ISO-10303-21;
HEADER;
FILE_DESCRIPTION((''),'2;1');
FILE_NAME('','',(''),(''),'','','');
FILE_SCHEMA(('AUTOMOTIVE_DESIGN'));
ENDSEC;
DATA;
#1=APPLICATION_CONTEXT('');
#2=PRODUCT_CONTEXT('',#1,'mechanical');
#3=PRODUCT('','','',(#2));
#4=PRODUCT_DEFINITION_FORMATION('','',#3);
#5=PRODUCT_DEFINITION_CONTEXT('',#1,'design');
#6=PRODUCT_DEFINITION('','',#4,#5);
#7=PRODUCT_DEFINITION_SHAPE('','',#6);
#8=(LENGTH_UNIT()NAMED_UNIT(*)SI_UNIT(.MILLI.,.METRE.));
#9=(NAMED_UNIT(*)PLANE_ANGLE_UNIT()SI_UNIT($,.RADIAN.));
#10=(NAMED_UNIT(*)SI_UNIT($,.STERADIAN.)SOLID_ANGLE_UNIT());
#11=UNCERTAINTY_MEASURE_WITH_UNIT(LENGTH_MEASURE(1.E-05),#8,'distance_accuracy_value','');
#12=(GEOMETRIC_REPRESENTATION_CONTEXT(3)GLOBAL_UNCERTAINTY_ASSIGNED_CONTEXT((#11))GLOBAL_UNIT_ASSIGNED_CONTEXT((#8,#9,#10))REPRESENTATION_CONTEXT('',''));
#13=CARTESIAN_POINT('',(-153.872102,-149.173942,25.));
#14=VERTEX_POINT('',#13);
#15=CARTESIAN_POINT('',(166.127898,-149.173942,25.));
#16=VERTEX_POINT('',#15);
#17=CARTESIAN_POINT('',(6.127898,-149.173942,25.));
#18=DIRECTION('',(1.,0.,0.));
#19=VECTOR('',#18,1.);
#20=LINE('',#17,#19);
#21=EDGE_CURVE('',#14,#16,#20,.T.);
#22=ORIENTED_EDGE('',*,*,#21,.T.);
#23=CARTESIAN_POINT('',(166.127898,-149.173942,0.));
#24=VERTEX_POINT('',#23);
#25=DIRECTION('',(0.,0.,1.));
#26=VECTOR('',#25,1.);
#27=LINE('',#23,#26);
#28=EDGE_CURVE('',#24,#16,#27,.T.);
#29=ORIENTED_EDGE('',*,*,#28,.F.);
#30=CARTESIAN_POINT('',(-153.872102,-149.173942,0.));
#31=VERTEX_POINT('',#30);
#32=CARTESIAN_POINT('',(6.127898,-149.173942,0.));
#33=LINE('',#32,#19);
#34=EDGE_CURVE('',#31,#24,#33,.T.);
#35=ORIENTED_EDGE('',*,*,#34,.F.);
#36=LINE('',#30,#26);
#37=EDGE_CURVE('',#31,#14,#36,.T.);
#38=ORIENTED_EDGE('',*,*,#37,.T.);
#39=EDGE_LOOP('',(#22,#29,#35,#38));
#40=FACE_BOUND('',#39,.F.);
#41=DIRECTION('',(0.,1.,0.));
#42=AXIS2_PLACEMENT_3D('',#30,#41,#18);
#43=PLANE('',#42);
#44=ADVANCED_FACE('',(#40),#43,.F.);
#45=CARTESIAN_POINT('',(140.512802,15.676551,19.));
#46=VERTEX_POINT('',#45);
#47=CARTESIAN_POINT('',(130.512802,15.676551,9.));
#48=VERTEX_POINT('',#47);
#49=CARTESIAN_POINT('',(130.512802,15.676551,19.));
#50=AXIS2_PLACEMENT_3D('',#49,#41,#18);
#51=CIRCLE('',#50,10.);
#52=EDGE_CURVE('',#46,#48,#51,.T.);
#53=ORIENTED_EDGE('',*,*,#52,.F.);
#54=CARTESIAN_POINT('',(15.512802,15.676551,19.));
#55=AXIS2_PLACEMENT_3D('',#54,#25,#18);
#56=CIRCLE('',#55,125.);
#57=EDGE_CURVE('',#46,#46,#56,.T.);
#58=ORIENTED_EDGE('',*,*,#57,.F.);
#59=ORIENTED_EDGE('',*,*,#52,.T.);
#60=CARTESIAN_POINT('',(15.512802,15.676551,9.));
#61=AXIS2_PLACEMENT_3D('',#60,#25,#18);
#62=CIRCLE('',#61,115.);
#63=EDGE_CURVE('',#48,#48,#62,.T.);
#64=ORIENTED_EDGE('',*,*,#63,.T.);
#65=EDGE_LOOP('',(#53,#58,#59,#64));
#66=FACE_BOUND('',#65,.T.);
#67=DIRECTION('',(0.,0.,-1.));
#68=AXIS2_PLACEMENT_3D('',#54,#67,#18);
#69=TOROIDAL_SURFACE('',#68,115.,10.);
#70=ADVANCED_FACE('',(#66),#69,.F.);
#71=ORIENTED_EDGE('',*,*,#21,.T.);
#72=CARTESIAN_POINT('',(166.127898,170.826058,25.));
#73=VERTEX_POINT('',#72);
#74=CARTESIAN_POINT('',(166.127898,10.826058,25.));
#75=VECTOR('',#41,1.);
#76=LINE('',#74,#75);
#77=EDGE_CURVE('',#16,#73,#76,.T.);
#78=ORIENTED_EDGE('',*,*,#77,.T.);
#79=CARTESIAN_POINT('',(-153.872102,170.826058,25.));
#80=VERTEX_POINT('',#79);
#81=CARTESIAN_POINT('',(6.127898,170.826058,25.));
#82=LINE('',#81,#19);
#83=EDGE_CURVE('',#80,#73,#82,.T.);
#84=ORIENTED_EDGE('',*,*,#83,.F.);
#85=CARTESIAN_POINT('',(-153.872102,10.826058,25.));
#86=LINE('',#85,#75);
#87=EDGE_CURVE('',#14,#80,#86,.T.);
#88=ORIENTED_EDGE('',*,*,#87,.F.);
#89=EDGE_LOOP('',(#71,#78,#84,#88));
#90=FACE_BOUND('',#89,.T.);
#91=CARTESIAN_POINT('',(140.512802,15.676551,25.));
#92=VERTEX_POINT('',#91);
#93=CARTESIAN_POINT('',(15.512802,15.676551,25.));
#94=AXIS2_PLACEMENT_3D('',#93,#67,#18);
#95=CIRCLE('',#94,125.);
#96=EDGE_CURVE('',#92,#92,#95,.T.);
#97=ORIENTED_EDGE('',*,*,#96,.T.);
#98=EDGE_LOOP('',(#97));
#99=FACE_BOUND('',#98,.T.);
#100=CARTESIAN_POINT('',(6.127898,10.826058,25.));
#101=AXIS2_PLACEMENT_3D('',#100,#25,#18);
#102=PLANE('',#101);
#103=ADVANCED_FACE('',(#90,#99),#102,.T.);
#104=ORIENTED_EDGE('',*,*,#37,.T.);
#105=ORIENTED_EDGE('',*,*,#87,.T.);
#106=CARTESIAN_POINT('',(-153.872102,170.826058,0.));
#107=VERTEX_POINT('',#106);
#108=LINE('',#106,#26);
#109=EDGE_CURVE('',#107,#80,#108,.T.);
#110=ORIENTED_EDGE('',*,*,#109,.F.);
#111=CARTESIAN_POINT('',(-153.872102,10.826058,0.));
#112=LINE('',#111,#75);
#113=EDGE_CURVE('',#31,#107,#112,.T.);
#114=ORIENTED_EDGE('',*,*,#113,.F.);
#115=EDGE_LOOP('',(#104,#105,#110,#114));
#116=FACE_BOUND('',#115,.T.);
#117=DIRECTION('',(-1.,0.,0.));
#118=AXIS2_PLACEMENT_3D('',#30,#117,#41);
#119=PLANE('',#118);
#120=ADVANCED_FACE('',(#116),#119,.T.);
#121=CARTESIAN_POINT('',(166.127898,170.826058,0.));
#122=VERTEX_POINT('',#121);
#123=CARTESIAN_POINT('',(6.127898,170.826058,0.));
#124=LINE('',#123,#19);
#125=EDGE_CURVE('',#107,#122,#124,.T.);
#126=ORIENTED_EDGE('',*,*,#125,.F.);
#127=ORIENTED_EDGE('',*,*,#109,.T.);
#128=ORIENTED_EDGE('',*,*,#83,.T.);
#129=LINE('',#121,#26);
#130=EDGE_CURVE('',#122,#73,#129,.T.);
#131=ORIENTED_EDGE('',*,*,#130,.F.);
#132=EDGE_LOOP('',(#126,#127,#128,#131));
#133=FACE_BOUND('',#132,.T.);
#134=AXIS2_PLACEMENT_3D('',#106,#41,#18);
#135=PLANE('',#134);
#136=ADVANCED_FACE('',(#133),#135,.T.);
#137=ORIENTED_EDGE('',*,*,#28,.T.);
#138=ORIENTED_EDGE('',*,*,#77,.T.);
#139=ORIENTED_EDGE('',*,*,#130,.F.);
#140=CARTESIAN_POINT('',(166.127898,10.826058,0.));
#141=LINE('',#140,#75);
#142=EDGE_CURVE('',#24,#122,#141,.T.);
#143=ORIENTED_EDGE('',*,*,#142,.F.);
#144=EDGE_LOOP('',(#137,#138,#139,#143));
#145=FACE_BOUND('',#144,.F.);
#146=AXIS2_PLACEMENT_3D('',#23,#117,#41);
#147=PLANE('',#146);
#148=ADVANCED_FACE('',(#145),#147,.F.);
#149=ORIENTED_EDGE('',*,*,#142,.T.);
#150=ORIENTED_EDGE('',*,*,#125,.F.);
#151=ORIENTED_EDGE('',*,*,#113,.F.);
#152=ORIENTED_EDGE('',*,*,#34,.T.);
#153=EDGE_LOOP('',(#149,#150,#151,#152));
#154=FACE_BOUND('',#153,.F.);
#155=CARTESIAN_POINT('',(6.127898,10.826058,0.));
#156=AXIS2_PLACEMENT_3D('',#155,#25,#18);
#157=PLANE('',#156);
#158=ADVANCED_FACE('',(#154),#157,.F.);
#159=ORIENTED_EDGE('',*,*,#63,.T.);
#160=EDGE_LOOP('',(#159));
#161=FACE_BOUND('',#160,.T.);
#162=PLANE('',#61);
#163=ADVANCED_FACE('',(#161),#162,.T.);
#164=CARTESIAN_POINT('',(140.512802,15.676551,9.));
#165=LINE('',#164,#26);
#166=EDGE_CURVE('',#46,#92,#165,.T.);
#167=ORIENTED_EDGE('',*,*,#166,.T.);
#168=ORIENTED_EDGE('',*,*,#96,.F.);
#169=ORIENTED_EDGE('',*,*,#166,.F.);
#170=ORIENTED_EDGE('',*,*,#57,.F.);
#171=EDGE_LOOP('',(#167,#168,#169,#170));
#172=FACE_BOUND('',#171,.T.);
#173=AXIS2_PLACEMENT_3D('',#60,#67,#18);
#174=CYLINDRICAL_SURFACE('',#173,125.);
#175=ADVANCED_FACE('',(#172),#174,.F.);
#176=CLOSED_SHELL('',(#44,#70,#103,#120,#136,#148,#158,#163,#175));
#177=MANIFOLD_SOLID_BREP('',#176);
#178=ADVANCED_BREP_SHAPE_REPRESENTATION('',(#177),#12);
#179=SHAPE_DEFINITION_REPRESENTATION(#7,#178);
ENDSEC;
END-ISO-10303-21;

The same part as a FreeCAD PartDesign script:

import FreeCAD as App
import Part
import Sketcher
from FreeCAD import Vector
Q = App.Units.Quantity


def edges_at(feature, points):
    """Names of the edges that pass closest to the given points."""
    edges = feature.Shape.Edges
    near = lambda p: min(range(len(edges)), key=lambda i: edges[i].distToShape(Part.Vertex(*p))[0])
    return sorted({f"Edge{near(p) + 1}" for p in points})

doc = App.newDocument("Part")
body = doc.addObject("PartDesign::Body", "Body")

# Sketch on XY plane
sketch1 = doc.addObject("Sketcher::SketchObject", "Sketch")
body.addObject(sketch1)
sketch1.AttachmentSupport = (doc.XY_Plane, [""])
sketch1.MapMode = "FlatFace"
sketch1.addGeometry([
    Part.LineSegment(Vector(-154, 171, 0), Vector(-154, -149, 0)),
    Part.LineSegment(Vector(-154, -149, 0), Vector(166, -149, 0)),
    Part.LineSegment(Vector(166, -149, 0), Vector(166, 171, 0)),
    Part.LineSegment(Vector(166, 171, 0), Vector(-154, 171, 0)),
], False)
sketch1.addConstraint([
    Sketcher.Constraint("Coincident", 0, 2, 1, 1),
    Sketcher.Constraint("Coincident", 1, 2, 2, 1),
    Sketcher.Constraint("Coincident", 2, 2, 3, 1),
    Sketcher.Constraint("Coincident", 3, 2, 0, 1),
    Sketcher.Constraint("Vertical", 0),
    Sketcher.Constraint("Horizontal", 1),
    Sketcher.Constraint("Vertical", 2),
    Sketcher.Constraint("Horizontal", 3),
    Sketcher.Constraint("Equal", 3, 0),
    Sketcher.Constraint("DistanceX", 1, 1, 1, 2, Q("320 mm")),
    Sketcher.Constraint("DistanceX", 0, 2, -1, 1, Q("153.872102 mm")),
    Sketcher.Constraint("DistanceY", 0, 2, -1, 1, Q("149.173942 mm")),
])
pad1 = doc.addObject("PartDesign::Pad", "Pad")
body.addObject(pad1)
pad1.Profile = sketch1
pad1.Length = 25
body2 = doc.addObject("PartDesign::Body", "Body001")

# Sketch on XY plane
sketch2 = doc.addObject("Sketcher::SketchObject", "Sketch001")
body2.addObject(sketch2)
sketch2.AttachmentSupport = (doc.getObject("XY_Plane001"), [""])
sketch2.MapMode = "FlatFace"
sketch2.AttachmentOffset = App.Placement(Vector(0, 0, 25), App.Rotation())
sketch2.addGeometry(Part.Circle(Vector(358, 16, 0), Vector(0, 0, 1), 125), False)
sketch2.addConstraint([
    Sketcher.Constraint("Diameter", 0, Q("250 mm")),
    Sketcher.Constraint("DistanceX", -1, 1, 0, 3, Q("357.512802 mm")),
    Sketcher.Constraint("DistanceY", -1, 1, 0, 3, Q("15.676551 mm")),
])
pad2 = doc.addObject("PartDesign::Pad", "Pad001")
body2.addObject(pad2)
pad2.Profile = sketch2
pad2.Length = 20
doc.recompute()

fillet = doc.addObject("PartDesign::Fillet", "Fillet")
body2.addObject(fillet)
fillet.Base = (pad2, edges_at(pad2, [(232.513, 15.677, 25)]))
fillet.Radius = 10
body3 = doc.addObject("PartDesign::Body", "Body002")
doc.recompute()

body2.Placement = App.Placement(Vector(-342, 0, -16), App.Rotation(Vector(0, 0, 1), 0))
boolean = doc.addObject("PartDesign::Boolean", "Boolean")
body3.addObject(boolean)
boolean.Type = "Fuse"
boolean.addObjects([body2])
doc.recompute()

boolean2 = doc.addObject("PartDesign::Boolean", "Boolean001")
body.addObject(boolean2)
boolean2.Type = "Cut"
boolean2.addObjects([body3])

doc.recompute()
